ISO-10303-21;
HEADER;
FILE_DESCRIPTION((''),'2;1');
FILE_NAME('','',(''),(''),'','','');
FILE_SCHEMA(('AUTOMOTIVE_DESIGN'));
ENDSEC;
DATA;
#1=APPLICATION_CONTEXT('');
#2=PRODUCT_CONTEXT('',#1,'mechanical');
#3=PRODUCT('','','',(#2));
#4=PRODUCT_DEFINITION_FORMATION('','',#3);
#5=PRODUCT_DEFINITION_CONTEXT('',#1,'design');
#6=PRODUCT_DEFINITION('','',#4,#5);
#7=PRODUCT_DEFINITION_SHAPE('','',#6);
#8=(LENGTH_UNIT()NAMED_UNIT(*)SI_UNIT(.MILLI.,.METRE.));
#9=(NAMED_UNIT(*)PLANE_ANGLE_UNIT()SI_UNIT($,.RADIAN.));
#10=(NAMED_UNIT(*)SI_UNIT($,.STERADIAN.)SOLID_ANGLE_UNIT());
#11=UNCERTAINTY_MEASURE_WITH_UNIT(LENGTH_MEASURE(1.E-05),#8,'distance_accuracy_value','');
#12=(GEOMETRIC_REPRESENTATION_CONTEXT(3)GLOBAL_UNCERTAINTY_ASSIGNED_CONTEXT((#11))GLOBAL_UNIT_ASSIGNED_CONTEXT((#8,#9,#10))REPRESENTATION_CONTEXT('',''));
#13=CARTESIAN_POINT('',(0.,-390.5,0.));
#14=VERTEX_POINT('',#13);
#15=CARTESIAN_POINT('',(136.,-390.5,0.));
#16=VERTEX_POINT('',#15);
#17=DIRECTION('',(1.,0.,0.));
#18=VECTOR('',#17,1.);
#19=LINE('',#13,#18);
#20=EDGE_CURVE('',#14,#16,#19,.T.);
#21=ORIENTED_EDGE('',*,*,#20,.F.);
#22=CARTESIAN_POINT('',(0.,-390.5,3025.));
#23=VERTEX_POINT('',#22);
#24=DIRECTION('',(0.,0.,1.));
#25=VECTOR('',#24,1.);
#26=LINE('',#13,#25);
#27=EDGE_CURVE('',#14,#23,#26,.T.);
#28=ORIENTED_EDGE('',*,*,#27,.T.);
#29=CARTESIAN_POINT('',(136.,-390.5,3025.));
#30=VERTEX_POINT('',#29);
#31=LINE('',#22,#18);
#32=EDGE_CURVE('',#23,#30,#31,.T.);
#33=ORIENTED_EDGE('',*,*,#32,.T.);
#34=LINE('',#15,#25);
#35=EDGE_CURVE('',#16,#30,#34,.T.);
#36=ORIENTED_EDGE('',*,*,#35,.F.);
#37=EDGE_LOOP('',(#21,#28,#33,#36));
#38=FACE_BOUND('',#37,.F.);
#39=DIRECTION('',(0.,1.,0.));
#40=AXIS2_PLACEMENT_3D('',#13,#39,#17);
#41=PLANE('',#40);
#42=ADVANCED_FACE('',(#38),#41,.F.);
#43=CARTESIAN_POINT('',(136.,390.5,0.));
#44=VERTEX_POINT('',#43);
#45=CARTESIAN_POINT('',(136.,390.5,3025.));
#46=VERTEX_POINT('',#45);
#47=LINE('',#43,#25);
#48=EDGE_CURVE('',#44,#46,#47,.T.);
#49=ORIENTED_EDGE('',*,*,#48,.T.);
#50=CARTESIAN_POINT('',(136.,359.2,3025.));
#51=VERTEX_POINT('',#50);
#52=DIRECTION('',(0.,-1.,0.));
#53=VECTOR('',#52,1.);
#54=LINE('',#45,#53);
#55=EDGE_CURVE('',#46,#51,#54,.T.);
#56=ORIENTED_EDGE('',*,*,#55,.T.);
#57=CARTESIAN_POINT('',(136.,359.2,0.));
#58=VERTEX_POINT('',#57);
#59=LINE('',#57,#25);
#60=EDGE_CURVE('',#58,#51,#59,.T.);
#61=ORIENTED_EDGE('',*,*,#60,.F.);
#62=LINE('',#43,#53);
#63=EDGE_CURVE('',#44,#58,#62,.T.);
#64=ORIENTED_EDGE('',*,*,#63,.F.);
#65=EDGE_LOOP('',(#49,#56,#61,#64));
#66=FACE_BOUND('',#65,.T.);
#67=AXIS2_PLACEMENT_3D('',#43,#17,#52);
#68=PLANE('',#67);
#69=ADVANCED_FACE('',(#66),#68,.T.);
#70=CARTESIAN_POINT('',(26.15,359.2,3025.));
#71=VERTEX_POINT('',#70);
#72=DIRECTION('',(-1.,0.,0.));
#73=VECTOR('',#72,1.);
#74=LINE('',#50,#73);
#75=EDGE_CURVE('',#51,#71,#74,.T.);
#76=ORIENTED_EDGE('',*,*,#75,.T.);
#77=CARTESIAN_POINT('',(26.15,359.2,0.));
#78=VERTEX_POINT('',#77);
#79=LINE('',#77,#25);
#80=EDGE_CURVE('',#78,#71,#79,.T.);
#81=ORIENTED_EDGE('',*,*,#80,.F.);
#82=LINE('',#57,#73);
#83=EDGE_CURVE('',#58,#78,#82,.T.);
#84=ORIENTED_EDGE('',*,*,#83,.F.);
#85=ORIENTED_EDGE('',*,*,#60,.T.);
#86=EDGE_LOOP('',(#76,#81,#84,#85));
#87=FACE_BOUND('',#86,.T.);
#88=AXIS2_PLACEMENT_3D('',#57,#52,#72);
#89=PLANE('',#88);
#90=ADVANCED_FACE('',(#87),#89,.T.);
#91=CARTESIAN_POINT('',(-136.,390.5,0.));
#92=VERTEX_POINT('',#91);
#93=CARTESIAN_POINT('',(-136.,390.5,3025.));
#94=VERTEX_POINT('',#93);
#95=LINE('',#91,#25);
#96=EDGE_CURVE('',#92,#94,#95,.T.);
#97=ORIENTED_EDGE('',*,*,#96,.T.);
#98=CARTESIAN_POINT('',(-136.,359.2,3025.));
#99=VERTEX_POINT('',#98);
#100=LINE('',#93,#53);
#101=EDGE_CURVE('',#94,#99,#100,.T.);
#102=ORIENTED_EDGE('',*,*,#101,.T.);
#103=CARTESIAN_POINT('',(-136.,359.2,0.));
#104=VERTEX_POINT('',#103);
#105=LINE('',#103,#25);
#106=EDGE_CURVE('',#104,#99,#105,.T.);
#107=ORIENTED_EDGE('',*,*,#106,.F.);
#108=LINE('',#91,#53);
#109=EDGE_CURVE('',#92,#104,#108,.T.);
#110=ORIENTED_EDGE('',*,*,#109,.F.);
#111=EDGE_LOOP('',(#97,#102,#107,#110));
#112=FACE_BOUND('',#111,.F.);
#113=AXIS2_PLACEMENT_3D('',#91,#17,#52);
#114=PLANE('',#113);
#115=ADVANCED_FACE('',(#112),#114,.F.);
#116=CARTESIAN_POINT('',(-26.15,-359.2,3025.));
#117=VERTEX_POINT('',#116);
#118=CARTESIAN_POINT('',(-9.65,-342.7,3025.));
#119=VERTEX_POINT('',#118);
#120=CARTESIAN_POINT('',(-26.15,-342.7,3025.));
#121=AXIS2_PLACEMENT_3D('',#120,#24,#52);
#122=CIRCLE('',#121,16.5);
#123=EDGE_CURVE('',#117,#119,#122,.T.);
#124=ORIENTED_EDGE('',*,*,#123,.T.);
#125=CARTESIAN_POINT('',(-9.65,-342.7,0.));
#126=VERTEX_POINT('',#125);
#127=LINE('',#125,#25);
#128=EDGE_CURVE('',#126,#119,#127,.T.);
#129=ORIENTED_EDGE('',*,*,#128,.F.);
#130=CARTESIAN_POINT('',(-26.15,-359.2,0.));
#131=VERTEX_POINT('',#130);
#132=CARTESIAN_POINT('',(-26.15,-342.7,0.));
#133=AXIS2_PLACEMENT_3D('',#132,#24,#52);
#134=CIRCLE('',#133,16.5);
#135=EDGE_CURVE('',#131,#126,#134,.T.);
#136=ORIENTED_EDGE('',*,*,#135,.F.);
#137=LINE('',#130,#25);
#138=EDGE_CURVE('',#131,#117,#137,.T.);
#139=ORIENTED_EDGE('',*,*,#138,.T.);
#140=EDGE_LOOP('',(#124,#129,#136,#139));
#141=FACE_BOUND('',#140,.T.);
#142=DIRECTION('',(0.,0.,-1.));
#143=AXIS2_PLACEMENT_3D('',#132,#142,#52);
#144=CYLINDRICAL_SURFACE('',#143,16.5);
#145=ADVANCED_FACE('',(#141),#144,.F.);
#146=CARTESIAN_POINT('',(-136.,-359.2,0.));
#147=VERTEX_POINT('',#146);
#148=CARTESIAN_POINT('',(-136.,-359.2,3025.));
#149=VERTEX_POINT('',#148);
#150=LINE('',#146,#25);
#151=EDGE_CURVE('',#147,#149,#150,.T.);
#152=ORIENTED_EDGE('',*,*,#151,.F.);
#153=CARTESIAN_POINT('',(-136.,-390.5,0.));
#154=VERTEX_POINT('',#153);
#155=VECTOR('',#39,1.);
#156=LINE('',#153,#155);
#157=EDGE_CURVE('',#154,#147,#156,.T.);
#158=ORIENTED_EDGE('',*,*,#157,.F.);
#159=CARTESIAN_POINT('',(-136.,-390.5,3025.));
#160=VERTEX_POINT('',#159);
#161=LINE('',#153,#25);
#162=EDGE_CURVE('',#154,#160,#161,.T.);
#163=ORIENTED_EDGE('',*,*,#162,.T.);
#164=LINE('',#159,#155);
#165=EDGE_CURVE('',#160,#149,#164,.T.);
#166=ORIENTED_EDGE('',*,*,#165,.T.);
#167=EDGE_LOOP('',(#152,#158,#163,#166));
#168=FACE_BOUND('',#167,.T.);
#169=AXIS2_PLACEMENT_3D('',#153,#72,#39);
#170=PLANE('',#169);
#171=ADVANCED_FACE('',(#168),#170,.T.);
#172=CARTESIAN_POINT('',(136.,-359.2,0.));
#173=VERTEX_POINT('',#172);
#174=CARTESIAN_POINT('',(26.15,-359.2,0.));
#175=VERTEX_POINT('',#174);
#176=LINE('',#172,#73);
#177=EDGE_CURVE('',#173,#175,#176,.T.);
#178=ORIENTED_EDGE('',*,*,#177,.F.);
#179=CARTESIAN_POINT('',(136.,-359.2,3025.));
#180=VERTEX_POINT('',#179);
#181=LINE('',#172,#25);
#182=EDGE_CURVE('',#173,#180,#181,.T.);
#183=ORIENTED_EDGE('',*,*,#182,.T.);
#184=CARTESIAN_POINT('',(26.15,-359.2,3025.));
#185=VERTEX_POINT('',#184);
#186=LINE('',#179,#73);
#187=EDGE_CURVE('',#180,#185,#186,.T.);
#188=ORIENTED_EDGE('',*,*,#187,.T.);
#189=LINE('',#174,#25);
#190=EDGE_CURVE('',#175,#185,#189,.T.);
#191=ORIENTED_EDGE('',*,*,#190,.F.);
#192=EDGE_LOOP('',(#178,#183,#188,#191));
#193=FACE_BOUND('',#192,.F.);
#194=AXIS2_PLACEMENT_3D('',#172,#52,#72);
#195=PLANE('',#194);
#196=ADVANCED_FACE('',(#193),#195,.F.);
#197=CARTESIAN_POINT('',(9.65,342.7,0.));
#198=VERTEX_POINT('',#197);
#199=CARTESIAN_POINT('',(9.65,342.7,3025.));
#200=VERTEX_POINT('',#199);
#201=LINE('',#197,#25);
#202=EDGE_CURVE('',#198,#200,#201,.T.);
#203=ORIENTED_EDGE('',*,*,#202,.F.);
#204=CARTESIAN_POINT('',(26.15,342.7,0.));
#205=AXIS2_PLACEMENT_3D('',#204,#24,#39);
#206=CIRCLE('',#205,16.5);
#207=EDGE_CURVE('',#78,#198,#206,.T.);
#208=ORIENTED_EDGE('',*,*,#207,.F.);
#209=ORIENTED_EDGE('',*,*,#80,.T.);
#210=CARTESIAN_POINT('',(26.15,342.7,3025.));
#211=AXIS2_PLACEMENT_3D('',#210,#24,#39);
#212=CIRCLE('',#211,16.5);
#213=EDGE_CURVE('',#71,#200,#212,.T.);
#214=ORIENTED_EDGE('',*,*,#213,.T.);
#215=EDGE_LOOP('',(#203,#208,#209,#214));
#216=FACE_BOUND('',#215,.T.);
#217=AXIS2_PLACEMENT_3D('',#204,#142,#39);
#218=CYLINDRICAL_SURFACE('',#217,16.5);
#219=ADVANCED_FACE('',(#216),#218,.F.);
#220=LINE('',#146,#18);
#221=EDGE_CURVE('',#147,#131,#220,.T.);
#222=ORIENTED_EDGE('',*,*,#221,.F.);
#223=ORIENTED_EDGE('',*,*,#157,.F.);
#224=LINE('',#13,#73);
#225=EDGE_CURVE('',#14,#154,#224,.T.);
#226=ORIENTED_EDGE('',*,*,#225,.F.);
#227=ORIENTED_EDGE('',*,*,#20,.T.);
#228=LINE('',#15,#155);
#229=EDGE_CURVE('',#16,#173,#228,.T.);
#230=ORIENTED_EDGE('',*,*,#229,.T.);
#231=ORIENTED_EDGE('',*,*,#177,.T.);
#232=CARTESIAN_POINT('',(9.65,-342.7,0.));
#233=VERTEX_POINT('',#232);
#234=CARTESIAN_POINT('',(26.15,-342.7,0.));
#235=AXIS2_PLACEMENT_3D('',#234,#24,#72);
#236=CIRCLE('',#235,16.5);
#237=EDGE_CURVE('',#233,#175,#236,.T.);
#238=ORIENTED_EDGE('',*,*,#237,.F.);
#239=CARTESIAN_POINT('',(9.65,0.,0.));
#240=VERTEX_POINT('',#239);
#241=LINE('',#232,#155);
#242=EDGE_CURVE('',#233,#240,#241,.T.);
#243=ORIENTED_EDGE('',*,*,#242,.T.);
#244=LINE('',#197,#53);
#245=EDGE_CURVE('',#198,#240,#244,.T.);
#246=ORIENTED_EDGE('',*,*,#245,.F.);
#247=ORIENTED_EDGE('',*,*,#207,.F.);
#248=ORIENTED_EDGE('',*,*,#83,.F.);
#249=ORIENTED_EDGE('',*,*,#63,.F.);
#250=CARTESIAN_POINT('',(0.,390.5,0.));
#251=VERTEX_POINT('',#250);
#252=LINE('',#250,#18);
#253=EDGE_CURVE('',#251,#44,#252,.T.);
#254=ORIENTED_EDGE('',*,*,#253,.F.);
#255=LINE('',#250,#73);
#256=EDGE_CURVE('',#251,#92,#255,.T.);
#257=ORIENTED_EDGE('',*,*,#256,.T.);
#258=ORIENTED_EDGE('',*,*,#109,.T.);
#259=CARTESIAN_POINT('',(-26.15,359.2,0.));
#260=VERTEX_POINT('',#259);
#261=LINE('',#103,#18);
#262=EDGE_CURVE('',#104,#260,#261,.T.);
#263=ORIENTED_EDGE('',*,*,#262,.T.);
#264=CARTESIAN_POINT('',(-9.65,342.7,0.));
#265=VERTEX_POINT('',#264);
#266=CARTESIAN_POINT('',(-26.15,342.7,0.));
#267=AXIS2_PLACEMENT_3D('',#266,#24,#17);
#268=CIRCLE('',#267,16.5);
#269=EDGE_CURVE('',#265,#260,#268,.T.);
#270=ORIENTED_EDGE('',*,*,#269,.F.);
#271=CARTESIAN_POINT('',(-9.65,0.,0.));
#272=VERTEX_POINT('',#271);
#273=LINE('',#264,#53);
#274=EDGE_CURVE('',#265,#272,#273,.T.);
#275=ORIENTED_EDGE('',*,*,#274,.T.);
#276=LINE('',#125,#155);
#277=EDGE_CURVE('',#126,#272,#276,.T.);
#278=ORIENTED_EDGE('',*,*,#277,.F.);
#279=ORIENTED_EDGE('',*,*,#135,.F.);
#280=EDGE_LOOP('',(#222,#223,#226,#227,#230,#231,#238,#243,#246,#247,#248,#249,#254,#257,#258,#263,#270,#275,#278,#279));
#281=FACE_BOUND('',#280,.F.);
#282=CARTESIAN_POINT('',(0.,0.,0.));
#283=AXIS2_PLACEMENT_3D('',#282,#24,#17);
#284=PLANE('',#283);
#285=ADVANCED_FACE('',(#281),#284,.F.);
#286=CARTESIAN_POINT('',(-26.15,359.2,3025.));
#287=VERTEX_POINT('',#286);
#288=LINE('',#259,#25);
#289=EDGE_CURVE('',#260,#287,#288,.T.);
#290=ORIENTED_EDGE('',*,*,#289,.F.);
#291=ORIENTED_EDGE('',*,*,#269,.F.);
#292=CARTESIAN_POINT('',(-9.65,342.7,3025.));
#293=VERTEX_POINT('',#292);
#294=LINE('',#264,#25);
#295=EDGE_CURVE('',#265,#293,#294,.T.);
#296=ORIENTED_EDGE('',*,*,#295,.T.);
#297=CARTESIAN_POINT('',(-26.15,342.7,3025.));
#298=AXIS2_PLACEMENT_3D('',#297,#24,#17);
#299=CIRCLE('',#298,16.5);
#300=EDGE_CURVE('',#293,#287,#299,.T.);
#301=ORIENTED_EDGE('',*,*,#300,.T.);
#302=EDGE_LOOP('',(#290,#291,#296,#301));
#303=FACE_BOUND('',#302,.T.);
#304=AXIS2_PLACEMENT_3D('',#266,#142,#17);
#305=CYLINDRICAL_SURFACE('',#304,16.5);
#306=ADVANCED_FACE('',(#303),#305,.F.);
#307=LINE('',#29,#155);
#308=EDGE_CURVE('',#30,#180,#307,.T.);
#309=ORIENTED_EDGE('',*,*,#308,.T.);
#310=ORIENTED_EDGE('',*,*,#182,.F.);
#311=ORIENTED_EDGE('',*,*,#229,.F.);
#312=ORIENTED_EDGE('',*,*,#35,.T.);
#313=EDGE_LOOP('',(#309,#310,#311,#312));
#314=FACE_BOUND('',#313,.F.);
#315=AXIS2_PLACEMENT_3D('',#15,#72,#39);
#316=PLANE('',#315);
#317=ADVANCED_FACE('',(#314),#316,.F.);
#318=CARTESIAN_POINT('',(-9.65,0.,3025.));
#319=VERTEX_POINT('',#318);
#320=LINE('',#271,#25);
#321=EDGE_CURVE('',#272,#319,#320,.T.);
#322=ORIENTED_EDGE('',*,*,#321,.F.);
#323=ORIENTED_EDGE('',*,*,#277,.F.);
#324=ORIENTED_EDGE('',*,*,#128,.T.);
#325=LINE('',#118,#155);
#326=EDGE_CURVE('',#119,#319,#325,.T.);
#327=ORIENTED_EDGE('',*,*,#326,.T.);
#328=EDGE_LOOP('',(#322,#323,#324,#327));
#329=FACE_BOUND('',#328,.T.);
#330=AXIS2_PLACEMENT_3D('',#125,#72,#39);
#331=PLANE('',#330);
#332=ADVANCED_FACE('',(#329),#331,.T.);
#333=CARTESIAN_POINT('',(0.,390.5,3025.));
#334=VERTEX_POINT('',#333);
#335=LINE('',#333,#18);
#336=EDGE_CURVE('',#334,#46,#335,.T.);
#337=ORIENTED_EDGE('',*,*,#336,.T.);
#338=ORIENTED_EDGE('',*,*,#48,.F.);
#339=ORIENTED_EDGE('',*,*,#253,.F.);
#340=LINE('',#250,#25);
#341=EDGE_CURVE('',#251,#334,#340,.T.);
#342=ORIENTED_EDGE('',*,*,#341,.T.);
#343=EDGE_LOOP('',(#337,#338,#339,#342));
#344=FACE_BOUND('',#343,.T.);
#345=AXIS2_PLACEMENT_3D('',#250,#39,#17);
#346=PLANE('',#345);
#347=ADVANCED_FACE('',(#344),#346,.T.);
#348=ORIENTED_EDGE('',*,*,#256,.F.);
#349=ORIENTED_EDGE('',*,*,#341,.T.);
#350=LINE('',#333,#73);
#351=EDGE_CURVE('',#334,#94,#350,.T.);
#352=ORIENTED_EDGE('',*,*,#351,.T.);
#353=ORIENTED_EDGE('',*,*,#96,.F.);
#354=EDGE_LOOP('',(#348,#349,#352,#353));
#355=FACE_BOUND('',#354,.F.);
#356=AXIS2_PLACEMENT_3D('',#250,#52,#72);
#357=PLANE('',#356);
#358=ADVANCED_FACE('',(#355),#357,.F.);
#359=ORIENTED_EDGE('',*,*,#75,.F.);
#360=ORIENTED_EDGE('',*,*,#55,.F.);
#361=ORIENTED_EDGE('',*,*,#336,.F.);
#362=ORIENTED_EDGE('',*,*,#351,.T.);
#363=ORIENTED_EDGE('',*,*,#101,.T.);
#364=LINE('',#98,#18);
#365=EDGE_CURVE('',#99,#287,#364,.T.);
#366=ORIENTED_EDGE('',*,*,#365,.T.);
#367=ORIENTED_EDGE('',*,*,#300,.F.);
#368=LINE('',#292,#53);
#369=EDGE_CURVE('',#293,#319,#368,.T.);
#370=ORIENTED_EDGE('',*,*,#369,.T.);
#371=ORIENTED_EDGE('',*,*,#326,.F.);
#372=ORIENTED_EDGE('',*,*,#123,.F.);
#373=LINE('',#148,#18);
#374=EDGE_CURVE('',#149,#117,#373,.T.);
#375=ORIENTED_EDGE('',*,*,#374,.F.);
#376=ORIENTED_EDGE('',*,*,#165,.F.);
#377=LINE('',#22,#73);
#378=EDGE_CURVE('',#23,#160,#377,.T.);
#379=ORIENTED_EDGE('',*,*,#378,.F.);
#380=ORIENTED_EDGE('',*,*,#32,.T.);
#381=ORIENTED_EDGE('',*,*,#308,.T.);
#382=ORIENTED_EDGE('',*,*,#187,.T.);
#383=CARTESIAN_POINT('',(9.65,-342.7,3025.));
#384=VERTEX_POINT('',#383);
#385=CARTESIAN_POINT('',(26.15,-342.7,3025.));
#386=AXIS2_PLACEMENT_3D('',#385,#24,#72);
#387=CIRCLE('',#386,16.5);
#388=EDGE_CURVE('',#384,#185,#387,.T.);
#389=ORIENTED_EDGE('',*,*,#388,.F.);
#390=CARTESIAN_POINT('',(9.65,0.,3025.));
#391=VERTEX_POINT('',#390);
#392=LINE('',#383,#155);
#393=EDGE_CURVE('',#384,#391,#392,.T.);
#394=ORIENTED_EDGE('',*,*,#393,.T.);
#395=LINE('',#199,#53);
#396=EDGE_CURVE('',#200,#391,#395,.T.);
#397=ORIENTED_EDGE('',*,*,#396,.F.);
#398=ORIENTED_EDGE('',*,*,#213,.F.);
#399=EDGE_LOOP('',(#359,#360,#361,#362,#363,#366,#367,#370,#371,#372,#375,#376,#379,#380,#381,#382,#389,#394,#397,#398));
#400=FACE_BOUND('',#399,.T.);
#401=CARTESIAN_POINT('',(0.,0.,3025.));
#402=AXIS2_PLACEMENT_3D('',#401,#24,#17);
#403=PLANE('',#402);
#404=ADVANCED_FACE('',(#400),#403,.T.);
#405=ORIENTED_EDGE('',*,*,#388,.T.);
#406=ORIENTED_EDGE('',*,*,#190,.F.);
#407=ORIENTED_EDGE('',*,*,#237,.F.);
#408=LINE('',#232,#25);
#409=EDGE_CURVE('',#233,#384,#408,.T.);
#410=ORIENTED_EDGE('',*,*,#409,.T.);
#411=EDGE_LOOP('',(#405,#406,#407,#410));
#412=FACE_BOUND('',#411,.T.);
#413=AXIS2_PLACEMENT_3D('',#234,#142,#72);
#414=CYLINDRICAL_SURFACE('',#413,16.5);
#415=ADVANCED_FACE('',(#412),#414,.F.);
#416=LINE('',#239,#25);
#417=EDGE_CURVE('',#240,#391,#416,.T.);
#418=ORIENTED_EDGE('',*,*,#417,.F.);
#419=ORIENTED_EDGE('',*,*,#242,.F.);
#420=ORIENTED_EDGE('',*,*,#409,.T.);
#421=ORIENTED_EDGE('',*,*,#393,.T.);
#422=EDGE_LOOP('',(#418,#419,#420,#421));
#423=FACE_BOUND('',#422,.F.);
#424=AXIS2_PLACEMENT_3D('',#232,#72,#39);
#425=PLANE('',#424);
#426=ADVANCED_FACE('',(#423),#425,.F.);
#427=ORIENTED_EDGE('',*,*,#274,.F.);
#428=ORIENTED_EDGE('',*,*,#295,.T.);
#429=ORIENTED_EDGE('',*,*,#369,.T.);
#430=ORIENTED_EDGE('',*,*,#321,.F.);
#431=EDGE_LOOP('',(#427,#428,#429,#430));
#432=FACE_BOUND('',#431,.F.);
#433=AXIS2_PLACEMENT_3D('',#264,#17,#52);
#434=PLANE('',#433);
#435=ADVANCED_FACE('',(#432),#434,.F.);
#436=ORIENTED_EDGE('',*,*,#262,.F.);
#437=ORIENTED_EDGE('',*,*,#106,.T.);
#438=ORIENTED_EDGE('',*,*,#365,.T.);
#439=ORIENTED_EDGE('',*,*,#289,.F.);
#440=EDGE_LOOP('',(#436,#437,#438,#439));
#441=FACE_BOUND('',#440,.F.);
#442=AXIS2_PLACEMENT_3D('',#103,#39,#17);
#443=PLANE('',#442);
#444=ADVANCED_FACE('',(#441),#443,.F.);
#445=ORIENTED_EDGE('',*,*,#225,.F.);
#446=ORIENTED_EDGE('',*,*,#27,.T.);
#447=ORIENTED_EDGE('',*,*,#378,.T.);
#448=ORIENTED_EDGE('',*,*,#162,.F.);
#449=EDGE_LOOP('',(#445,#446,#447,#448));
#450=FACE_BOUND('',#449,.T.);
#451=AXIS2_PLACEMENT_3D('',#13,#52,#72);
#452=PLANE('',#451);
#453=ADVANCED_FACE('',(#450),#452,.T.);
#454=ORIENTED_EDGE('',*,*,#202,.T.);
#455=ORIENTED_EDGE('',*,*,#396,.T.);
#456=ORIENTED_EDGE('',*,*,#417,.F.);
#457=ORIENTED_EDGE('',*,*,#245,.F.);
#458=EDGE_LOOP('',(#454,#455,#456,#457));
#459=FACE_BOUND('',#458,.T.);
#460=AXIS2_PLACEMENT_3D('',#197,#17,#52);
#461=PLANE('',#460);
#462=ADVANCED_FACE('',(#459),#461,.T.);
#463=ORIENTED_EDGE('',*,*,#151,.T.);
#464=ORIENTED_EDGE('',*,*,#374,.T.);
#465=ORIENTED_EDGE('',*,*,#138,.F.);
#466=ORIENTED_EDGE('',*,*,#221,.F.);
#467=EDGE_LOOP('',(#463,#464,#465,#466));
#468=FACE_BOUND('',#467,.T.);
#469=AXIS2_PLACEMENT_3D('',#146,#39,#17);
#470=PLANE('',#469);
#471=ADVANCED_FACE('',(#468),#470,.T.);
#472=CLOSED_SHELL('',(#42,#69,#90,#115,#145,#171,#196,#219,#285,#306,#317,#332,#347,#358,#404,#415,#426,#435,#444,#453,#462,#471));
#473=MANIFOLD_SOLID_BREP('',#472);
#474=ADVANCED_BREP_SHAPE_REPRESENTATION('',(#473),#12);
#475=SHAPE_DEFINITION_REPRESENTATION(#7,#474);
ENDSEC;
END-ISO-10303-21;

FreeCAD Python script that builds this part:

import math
import FreeCAD as App
import Part
import Sketcher
from FreeCAD import Vector

doc = App.newDocument("Part")
body = doc.addObject("PartDesign::Body", "Body")

# Sketch on XY plane
sketch1 = doc.addObject("Sketcher::SketchObject", "Sketch")
body.addObject(sketch1)
sketch1.AttachmentSupport = (doc.XY_Plane, [""])
sketch1.MapMode = "FlatFace"
sketch1.addGeometry([
    Part.LineSegment(Vector(-136, -359, 0), Vector(-136, -390, 0)),  # 0
    Part.LineSegment(Vector(-136, -390, 0), Vector(136, -390, 0)),  # 1
    Part.LineSegment(Vector(136, -390, 0), Vector(136, -359, 0)),  # 2
    Part.LineSegment(Vector(136, -359, 0), Vector(26, -359, 0)),  # 3
    Part.ArcOfCircle(Part.Circle(Vector(26, -343, 0), Vector(0, 0, 1), 16), math.radians(180), math.radians(270)),  # 4
    Part.LineSegment(Vector(10, -343, 0), Vector(10, 343, 0)),  # 5
    Part.ArcOfCircle(Part.Circle(Vector(26, 343, 0), Vector(0, 0, 1), 16), math.radians(90), math.radians(180)),  # 6
    Part.LineSegment(Vector(26, 359, 0), Vector(136, 359, 0)),  # 7
    Part.LineSegment(Vector(136, 359, 0), Vector(136, 390, 0)),  # 8
    Part.LineSegment(Vector(136, 390, 0), Vector(-136, 390, 0)),  # 9
    Part.LineSegment(Vector(-136, 390, 0), Vector(-136, 359, 0)),  # 10
    Part.LineSegment(Vector(-136, 359, 0), Vector(-26, 359, 0)),  # 11
    Part.ArcOfCircle(Part.Circle(Vector(-26, 343, 0), Vector(0, 0, 1), 16), math.radians(0), math.radians(90)),  # 12
    Part.LineSegment(Vector(-10, 343, 0), Vector(-10, -343, 0)),  # 13
    Part.ArcOfCircle(Part.Circle(Vector(-26, -343, 0), Vector(0, 0, 1), 16), math.radians(-90), math.radians(0)),  # 14
    Part.LineSegment(Vector(-26, -359, 0), Vector(-136, -359, 0)),  # 15
], False)
sketch1.addConstraint([
    Sketcher.Constraint("Coincident", 0, 2, 1, 1),
    Sketcher.Constraint("Coincident", 1, 2, 2, 1),
    Sketcher.Constraint("Coincident", 2, 2, 3, 1),
    Sketcher.Constraint("Tangent", 3, 2, 4, 2),
    Sketcher.Constraint("Tangent", 4, 1, 5, 1),
    Sketcher.Constraint("Tangent", 5, 2, 6, 2),
    Sketcher.Constraint("Tangent", 6, 1, 7, 1),
    Sketcher.Constraint("Coincident", 7, 2, 8, 1),
    Sketcher.Constraint("Coincident", 8, 2, 9, 1),
    Sketcher.Constraint("Coincident", 9, 2, 10, 1),
    Sketcher.Constraint("Coincident", 10, 2, 11, 1),
    Sketcher.Constraint("Tangent", 11, 2, 12, 2),
    Sketcher.Constraint("Tangent", 12, 1, 13, 1),
    Sketcher.Constraint("Tangent", 13, 2, 14, 2),
    Sketcher.Constraint("Tangent", 14, 1, 15, 1),
    Sketcher.Constraint("Coincident", 15, 2, 0, 1),
    Sketcher.Constraint("Vertical", 0),
    Sketcher.Constraint("Horizontal", 1),
    Sketcher.Constraint("Vertical", 2),
    Sketcher.Constraint("Horizontal", 3),
    Sketcher.Constraint("Vertical", 5),
    Sketcher.Constraint("Horizontal", 7),
    Sketcher.Constraint("Vertical", 8),
    Sketcher.Constraint("Horizontal", 9),
    Sketcher.Constraint("Vertical", 10),
    Sketcher.Constraint("Horizontal", 11),
    Sketcher.Constraint("Vertical", 13),
    Sketcher.Constraint("Horizontal", 15),
    Sketcher.Constraint("Equal", 4, 6),
    Sketcher.Constraint("Equal", 6, 12),
    Sketcher.Constraint("Equal", 12, 14),
    Sketcher.Constraint("Symmetric", 4, 3, 12, 3, -1, 1),
    Sketcher.Constraint("Symmetric", 0, 2, 8, 2, -1, 1),
    Sketcher.Constraint("Symmetric", 7, 2, 10, 2, -2),
    Sketcher.Constraint("Symmetric", 2, 2, 15, 2, -2),
    Sketcher.Constraint("Radius", 4, 16.5),
    Sketcher.Constraint("DistanceY", 0, 2, 0, 1, 31.3),
    Sketcher.Constraint("DistanceX", 0, 2, -1, 1, 136.0),
    Sketcher.Constraint("DistanceY", 0, 2, -1, 1, 390.5),
    Sketcher.Constraint("DistanceX", -1, 1, 4, 1, 9.65),
])
pad1 = doc.addObject("PartDesign::Pad", "Pad")
body.addObject(pad1)
pad1.Profile = sketch1
pad1.Length = 3025

doc.recompute()
